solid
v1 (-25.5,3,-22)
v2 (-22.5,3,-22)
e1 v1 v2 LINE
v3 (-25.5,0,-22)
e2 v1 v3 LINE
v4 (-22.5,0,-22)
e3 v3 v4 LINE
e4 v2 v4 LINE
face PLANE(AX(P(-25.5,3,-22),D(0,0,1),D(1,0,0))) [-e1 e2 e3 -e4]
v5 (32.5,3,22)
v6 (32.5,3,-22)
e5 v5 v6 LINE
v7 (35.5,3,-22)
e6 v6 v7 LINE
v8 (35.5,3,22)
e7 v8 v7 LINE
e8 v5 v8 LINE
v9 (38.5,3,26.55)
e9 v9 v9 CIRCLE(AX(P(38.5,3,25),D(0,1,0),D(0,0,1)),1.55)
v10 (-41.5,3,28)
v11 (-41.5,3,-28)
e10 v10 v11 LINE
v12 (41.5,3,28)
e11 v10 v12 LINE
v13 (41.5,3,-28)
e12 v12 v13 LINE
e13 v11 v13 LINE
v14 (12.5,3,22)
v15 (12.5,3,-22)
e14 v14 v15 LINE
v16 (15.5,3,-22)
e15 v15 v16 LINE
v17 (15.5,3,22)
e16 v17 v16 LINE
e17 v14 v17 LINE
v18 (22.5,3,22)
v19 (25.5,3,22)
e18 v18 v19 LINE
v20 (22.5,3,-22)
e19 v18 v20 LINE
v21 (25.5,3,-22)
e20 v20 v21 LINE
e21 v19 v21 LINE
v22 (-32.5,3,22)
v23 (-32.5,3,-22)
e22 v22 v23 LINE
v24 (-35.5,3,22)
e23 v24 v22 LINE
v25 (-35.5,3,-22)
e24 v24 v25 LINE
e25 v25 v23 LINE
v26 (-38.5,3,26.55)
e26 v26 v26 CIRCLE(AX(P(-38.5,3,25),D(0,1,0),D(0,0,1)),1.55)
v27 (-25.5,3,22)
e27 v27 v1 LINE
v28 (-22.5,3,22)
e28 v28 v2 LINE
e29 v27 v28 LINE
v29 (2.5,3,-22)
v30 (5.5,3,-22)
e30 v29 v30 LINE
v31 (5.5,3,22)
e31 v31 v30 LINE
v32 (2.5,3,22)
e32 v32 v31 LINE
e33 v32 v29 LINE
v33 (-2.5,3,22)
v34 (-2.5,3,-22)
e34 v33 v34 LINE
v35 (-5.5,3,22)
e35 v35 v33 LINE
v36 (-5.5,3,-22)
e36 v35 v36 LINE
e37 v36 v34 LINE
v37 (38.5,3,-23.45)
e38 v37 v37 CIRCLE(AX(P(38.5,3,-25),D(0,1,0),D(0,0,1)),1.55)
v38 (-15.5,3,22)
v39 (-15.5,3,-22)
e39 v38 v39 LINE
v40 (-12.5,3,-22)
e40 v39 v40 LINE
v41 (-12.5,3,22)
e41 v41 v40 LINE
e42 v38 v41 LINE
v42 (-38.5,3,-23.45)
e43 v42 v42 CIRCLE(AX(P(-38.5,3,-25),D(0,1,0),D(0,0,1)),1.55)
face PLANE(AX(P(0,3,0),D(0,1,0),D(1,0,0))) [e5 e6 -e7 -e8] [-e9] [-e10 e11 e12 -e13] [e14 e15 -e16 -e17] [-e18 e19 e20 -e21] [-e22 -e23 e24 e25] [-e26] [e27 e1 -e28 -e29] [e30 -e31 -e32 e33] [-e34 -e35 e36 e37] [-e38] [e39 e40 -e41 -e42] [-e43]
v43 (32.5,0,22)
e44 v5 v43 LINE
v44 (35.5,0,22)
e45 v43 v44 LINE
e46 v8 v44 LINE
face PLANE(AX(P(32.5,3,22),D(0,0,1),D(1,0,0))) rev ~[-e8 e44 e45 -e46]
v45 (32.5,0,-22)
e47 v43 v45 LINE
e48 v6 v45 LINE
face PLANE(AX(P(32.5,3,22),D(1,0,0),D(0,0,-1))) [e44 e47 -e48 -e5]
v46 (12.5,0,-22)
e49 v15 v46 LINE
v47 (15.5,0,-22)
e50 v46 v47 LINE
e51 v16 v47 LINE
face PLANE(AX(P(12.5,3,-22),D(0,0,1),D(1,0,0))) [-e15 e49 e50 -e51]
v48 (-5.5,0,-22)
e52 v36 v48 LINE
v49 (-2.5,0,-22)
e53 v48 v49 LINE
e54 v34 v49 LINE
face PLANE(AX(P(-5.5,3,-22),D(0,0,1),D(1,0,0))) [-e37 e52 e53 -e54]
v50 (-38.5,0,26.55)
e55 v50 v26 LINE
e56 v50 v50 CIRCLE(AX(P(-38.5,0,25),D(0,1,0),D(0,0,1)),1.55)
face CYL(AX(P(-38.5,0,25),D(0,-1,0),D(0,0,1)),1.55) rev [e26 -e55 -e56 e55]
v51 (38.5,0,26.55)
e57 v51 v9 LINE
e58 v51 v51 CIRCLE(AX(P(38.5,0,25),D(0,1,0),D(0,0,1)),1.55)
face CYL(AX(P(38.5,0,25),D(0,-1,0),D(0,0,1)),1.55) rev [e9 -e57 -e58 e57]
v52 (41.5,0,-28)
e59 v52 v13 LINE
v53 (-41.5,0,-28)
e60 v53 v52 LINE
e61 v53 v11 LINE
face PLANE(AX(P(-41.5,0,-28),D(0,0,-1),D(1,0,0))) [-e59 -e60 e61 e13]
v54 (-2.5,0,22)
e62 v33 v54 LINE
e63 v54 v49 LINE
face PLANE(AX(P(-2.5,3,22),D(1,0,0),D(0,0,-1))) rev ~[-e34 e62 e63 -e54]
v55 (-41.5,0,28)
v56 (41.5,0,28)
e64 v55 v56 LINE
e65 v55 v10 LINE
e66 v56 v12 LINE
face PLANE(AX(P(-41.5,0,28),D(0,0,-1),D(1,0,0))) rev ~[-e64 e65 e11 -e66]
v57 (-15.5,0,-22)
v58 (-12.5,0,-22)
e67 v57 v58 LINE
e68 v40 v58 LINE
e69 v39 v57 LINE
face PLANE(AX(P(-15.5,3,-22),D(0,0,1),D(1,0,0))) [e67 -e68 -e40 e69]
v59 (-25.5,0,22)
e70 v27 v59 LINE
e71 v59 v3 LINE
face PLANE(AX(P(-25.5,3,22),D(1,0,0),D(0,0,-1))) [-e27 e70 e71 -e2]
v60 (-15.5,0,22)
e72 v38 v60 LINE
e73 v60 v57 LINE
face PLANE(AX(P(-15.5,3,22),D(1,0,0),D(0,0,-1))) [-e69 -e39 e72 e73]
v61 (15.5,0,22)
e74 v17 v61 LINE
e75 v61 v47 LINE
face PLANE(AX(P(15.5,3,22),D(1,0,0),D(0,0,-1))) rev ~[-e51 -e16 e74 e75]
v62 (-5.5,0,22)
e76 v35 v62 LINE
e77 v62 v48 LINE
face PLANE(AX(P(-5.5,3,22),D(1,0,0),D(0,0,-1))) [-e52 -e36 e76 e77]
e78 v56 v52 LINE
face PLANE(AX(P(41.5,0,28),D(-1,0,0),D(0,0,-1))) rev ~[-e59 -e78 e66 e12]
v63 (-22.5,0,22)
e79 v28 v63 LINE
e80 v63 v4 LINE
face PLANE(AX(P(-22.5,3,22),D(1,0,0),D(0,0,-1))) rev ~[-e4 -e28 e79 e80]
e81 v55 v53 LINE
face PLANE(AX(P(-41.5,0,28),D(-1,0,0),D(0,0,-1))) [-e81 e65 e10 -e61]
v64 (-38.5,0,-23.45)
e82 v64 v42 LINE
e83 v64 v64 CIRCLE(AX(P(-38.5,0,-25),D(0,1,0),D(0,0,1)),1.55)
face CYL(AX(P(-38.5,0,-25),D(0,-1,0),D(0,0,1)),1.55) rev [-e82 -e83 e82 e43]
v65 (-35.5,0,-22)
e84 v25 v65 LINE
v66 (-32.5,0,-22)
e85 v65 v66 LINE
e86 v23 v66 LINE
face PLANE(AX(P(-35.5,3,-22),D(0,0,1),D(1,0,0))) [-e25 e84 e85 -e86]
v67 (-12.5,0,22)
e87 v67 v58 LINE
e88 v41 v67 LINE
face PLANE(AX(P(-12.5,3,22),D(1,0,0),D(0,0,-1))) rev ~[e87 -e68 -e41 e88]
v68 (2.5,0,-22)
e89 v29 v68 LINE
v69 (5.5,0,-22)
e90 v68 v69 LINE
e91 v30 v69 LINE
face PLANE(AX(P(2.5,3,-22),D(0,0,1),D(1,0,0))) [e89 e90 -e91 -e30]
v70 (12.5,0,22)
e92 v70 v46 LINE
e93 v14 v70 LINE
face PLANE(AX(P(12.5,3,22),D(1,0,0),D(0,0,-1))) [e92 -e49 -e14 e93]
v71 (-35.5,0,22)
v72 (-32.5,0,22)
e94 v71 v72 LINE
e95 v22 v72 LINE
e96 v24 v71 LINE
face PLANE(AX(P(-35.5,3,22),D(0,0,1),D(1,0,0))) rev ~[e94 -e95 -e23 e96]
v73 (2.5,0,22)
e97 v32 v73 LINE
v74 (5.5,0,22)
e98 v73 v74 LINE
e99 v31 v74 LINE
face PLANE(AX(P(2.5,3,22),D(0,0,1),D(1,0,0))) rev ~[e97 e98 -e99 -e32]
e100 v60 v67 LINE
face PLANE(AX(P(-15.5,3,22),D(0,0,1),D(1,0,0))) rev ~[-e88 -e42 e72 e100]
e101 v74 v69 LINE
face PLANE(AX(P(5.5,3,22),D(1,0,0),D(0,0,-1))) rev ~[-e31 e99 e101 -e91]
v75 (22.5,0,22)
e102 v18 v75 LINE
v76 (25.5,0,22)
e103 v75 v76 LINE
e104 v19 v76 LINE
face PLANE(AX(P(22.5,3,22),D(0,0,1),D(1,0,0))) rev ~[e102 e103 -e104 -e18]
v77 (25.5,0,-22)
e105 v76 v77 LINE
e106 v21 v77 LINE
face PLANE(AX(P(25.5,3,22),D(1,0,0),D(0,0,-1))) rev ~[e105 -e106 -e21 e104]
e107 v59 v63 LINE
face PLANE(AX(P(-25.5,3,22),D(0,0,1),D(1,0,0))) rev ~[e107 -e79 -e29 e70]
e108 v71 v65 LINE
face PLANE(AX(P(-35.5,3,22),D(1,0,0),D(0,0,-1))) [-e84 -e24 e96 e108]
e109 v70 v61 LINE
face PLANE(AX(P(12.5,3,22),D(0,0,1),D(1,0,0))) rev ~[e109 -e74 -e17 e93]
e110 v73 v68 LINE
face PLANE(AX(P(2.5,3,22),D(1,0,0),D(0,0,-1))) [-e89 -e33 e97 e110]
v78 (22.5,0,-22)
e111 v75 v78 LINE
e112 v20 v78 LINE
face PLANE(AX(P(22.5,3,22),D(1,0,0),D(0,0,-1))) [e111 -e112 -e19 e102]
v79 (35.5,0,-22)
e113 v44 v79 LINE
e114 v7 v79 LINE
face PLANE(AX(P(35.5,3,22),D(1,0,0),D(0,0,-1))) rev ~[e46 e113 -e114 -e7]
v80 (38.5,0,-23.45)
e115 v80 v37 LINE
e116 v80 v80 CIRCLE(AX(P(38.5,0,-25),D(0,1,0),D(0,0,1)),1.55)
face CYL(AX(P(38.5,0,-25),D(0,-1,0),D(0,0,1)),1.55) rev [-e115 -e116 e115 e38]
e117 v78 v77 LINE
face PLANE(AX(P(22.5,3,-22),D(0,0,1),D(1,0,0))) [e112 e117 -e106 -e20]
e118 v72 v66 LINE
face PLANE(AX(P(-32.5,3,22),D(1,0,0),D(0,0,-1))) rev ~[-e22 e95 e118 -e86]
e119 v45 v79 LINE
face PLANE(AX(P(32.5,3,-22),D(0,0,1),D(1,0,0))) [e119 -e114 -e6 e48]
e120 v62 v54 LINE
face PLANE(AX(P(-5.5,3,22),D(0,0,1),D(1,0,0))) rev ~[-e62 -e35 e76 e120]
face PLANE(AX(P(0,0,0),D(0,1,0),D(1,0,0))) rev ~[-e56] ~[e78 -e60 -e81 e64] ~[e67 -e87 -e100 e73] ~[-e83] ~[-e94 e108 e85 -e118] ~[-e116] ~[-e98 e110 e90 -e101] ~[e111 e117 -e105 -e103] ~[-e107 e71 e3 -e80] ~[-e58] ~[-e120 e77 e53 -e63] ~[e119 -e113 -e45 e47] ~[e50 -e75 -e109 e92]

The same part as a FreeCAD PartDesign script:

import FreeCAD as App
import Part
import Sketcher

V = App.Vector
Q = App.Units.Quantity

doc = App.newDocument("Part")
body = doc.addObject("PartDesign::Body", "Body")

# Sketch on XZ plane
sketch1 = doc.addObject("Sketcher::SketchObject", "Sketch")
body.addObject(sketch1)
sketch1.AttachmentSupport = (doc.XZ_Plane, [""])
sketch1.MapMode = "FlatFace"
sketch1.addGeometry([
    Part.LineSegment(V(-41.5, -28, 0), V(-41.5, 28, 0)),  # 0
    Part.LineSegment(V(-41.5, 28, 0), V(41.5, 28, 0)),  # 1
    Part.LineSegment(V(41.5, 28, 0), V(41.5, -28, 0)),  # 2
    Part.LineSegment(V(41.5, -28, 0), V(-41.5, -28, 0)),  # 3
    Part.Circle(V(-38.5, 25, 0), V(0, 0, 1), 1.6),  # 4
    Part.Circle(V(38.5, 25, 0), V(0, 0, 1), 1.6),  # 5
    Part.Circle(V(-38.5, -25, 0), V(0, 0, 1), 1.6),  # 6
    Part.Circle(V(38.5, -25, 0), V(0, 0, 1), 1.6),  # 7
], False)
sketch1.addConstraint([
    Sketcher.Constraint("Coincident", 0, 2, 1, 1),
    Sketcher.Constraint("Coincident", 1, 2, 2, 1),
    Sketcher.Constraint("Coincident", 2, 2, 3, 1),
    Sketcher.Constraint("Coincident", 3, 2, 0, 1),
    Sketcher.Constraint("Vertical", 0),
    Sketcher.Constraint("Horizontal", 1),
    Sketcher.Constraint("Vertical", 2),
    Sketcher.Constraint("Horizontal", 3),
    Sketcher.Constraint("Equal", 4, 5),
    Sketcher.Constraint("Equal", 5, 6),
    Sketcher.Constraint("Equal", 6, 7),
    Sketcher.Constraint("Symmetric", 5, 3, 6, 3, -1, 1),
    Sketcher.Constraint("Symmetric", 4, 3, 7, 3, -1, 1),
    Sketcher.Constraint("Symmetric", 0, 2, 2, 2, -1, 1),
    Sketcher.Constraint("Symmetric", 4, 3, 5, 3, -2),
    Sketcher.Constraint("Diameter", 4, Q("3.1 mm")),
    Sketcher.Constraint("DistanceX", 1, 1, 1, 2, Q("83 mm")),
    Sketcher.Constraint("DistanceY", 0, 1, 0, 2, Q("56 mm")),
    Sketcher.Constraint("DistanceY", -1, 1, 4, 3, Q("25 mm")),
    Sketcher.Constraint("DistanceX", 4, 3, 5, 3, Q("77 mm")),
])
pad1 = doc.addObject("PartDesign::Pad", "Pad")
body.addObject(pad1)
pad1.Profile = sketch1
pad1.Length = 3
pad1.Reversed = True

# Sketch on XZ plane
sketch2 = doc.addObject("Sketcher::SketchObject", "Sketch001")
body.addObject(sketch2)
sketch2.AttachmentSupport = (doc.XZ_Plane, [""])
sketch2.MapMode = "FlatFace"
sketch2.AttachmentOffset = App.Placement(V(0, 0, -3), App.Rotation())
sketch2.addGeometry([
    Part.LineSegment(V(-35.5, -22, 0), V(-35.5, 22, 0)),  # 0
    Part.LineSegment(V(-35.5, 22, 0), V(-32.5, 22, 0)),  # 1
    Part.LineSegment(V(-32.5, 22, 0), V(-32.5, -22, 0)),  # 2
    Part.LineSegment(V(-32.5, -22, 0), V(-35.5, -22, 0)),  # 3
    Part.LineSegment(V(-25.5, -22, 0), V(-25.5, 22, 0)),  # 4
    Part.LineSegment(V(-25.5, 22, 0), V(-22.5, 22, 0)),  # 5
    Part.LineSegment(V(-22.5, 22, 0), V(-22.5, -22, 0)),  # 6
    Part.LineSegment(V(-22.5, -22, 0), V(-25.5, -22, 0)),  # 7
    Part.LineSegment(V(-15.5, -22, 0), V(-15.5, 22, 0)),  # 8
    Part.LineSegment(V(-15.5, 22, 0), V(-12.5, 22, 0)),  # 9
    Part.LineSegment(V(-12.5, 22, 0), V(-12.5, -22, 0)),  # 10
    Part.LineSegment(V(-12.5, -22, 0), V(-15.5, -22, 0)),  # 11
    Part.LineSegment(V(-5.5, -22, 0), V(-5.5, 22, 0)),  # 12
    Part.LineSegment(V(-5.5, 22, 0), V(-2.5, 22, 0)),  # 13
    Part.LineSegment(V(-2.5, 22, 0), V(-2.5, -22, 0)),  # 14
    Part.LineSegment(V(-2.5, -22, 0), V(-5.5, -22, 0)),  # 15
    Part.LineSegment(V(2.5, -22, 0), V(2.5, 22, 0)),  # 16
    Part.LineSegment(V(2.5, 22, 0), V(5.5, 22, 0)),  # 17
    Part.LineSegment(V(5.5, 22, 0), V(5.5, -22, 0)),  # 18
    Part.LineSegment(V(5.5, -22, 0), V(2.5, -22, 0)),  # 19
    Part.LineSegment(V(12.5, -22, 0), V(12.5, 22, 0)),  # 20
    Part.LineSegment(V(12.5, 22, 0), V(15.5, 22, 0)),  # 21
    Part.LineSegment(V(15.5, 22, 0), V(15.5, -22, 0)),  # 22
    Part.LineSegment(V(15.5, -22, 0), V(12.5, -22, 0)),  # 23
    Part.LineSegment(V(22.5, -22, 0), V(22.5, 22, 0)),  # 24
    Part.LineSegment(V(22.5, 22, 0), V(25.5, 22, 0)),  # 25
    Part.LineSegment(V(25.5, 22, 0), V(25.5, -22, 0)),  # 26
    Part.LineSegment(V(25.5, -22, 0), V(22.5, -22, 0)),  # 27
    Part.LineSegment(V(32.5, -22, 0), V(32.5, 22, 0)),  # 28
    Part.LineSegment(V(32.5, 22, 0), V(35.5, 22, 0)),  # 29
    Part.LineSegment(V(35.5, 22, 0), V(35.5, -22, 0)),  # 30
    Part.LineSegment(V(35.5, -22, 0), V(32.5, -22, 0)),  # 31
], False)
sketch2.addConstraint([
    Sketcher.Constraint("Coincident", 0, 2, 1, 1),
    Sketcher.Constraint("Coincident", 1, 2, 2, 1),
    Sketcher.Constraint("Coincident", 2, 2, 3, 1),
    Sketcher.Constraint("Coincident", 3, 2, 0, 1),
    Sketcher.Constraint("Coincident", 4, 2, 5, 1),
    Sketcher.Constraint("Coincident", 5, 2, 6, 1),
    Sketcher.Constraint("Coincident", 6, 2, 7, 1),
    Sketcher.Constraint("Coincident", 7, 2, 4, 1),
    Sketcher.Constraint("Coincident", 8, 2, 9, 1),
    Sketcher.Constraint("Coincident", 9, 2, 10, 1),
    Sketcher.Constraint("Coincident", 10, 2, 11, 1),
    Sketcher.Constraint("Coincident", 11, 2, 8, 1),
    Sketcher.Constraint("Coincident", 12, 2, 13, 1),
    Sketcher.Constraint("Coincident", 13, 2, 14, 1),
    Sketcher.Constraint("Coincident", 14, 2, 15, 1),
    Sketcher.Constraint("Coincident", 15, 2, 12, 1),
    Sketcher.Constraint("Coincident", 16, 2, 17, 1),
    Sketcher.Constraint("Coincident", 17, 2, 18, 1),
    Sketcher.Constraint("Coincident", 18, 2, 19, 1),
    Sketcher.Constraint("Coincident", 19, 2, 16, 1),
    Sketcher.Constraint("Coincident", 20, 2, 21, 1),
    Sketcher.Constraint("Coincident", 21, 2, 22, 1),
    Sketcher.Constraint("Coincident", 22, 2, 23, 1),
    Sketcher.Constraint("Coincident", 23, 2, 20, 1),
    Sketcher.Constraint("Coincident", 24, 2, 25, 1),
    Sketcher.Constraint("Coincident", 25, 2, 26, 1),
    Sketcher.Constraint("Coincident", 26, 2, 27, 1),
    Sketcher.Constraint("Coincident", 27, 2, 24, 1),
    Sketcher.Constraint("Coincident", 28, 2, 29, 1),
    Sketcher.Constraint("Coincident", 29, 2, 30, 1),
    Sketcher.Constraint("Coincident", 30, 2, 31, 1),
    Sketcher.Constraint("Coincident", 31, 2, 28, 1),
    Sketcher.Constraint("Vertical", 0),
    Sketcher.Constraint("Horizontal", 1),
    Sketcher.Constraint("Vertical", 2),
    Sketcher.Constraint("Horizontal", 3),
    Sketcher.Constraint("Vertical", 4),
    Sketcher.Constraint("Horizontal", 5),
    Sketcher.Constraint("Vertical", 6),
    Sketcher.Constraint("Horizontal", 7),
    Sketcher.Constraint("Vertical", 8),
    Sketcher.Constraint("Horizontal", 9),
    Sketcher.Constraint("Vertical", 10),
    Sketcher.Constraint("Horizontal", 11),
    Sketcher.Constraint("Vertical", 12),
    Sketcher.Constraint("Horizontal", 13),
    Sketcher.Constraint("Vertical", 14),
    Sketcher.Constraint("Horizontal", 15),
    Sketcher.Constraint("Vertical", 16),
    Sketcher.Constraint("Horizontal", 17),
    Sketcher.Constraint("Vertical", 18),
    Sketcher.Constraint("Horizontal", 19),
    Sketcher.Constraint("Vertical", 20),
    Sketcher.Constraint("Horizontal", 21),
    Sketcher.Constraint("Vertical", 22),
    Sketcher.Constraint("Horizontal", 23),
    Sketcher.Constraint("Vertical", 24),
    Sketcher.Constraint("Horizontal", 25),
    Sketcher.Constraint("Vertical", 26),
    Sketcher.Constraint("Horizontal", 27),
    Sketcher.Constraint("Vertical", 28),
    Sketcher.Constraint("Horizontal", 29),
    Sketcher.Constraint("Vertical", 30),
    Sketcher.Constraint("Horizontal", 31),
    Sketcher.Constraint("Symmetric", 14, 2, 16, 2, -1, 1),
    Sketcher.Constraint("Symmetric", 12, 2, 18, 2, -1, 1),
    Sketcher.Constraint("Symmetric", 10, 2, 20, 2, -1, 1),
    Sketcher.Constraint("Symmetric", 8, 2, 22, 2, -1, 1),
    Sketcher.Constraint("Symmetric", 6, 2, 24, 2, -1, 1),
    Sketcher.Constraint("Symmetric", 4, 2, 26, 2, -1, 1),
    Sketcher.Constraint("Symmetric", 2, 2, 28, 2, -1, 1),
    Sketcher.Constraint("Symmetric", 0, 2, 30, 2, -1, 1),
    Sketcher.Constraint("Horizontal", 1, 2, 4, 2),
    Sketcher.Constraint("Horizontal", 3, 2, 6, 2),
    Sketcher.Constraint("Horizontal", 5, 2, 8, 2),
    Sketcher.Constraint("Horizontal", 7, 2, 10, 2),
    Sketcher.Constraint("Horizontal", 9, 2, 12, 2),
    Sketcher.Constraint("Horizontal", 11, 2, 14, 2),
    Sketcher.Constraint("Horizontal", 13, 2, 16, 2),
    Sketcher.Constraint("Equal", 3, 5),
    Sketcher.Constraint("Equal", 7, 9),
    Sketcher.Constraint("Equal", 11, 13),
    Sketcher.Constraint("DistanceX", 1, 1, 1, 2, Q("3 mm")),
    Sketcher.Constraint("DistanceY", 0, 1, 0, 2, Q("44 mm")),
    Sketcher.Constraint("DistanceX", 1, 2, 4, 2, Q("7 mm")),
    Sketcher.Constraint("DistanceX", 5, 2, 8, 2, Q("7 mm")),
    Sketcher.Constraint("DistanceX", 9, 2, 12, 2, Q("7 mm")),
    Sketcher.Constraint("DistanceX", 13, 2, 16, 2, Q("5 mm")),
])
pocket1 = doc.addObject("PartDesign::Pocket", "Pocket")
body.addObject(pocket1)
pocket1.Profile = sketch2
pocket1.Type = "ThroughAll"
pocket1.Reversed = True

doc.recompute()
